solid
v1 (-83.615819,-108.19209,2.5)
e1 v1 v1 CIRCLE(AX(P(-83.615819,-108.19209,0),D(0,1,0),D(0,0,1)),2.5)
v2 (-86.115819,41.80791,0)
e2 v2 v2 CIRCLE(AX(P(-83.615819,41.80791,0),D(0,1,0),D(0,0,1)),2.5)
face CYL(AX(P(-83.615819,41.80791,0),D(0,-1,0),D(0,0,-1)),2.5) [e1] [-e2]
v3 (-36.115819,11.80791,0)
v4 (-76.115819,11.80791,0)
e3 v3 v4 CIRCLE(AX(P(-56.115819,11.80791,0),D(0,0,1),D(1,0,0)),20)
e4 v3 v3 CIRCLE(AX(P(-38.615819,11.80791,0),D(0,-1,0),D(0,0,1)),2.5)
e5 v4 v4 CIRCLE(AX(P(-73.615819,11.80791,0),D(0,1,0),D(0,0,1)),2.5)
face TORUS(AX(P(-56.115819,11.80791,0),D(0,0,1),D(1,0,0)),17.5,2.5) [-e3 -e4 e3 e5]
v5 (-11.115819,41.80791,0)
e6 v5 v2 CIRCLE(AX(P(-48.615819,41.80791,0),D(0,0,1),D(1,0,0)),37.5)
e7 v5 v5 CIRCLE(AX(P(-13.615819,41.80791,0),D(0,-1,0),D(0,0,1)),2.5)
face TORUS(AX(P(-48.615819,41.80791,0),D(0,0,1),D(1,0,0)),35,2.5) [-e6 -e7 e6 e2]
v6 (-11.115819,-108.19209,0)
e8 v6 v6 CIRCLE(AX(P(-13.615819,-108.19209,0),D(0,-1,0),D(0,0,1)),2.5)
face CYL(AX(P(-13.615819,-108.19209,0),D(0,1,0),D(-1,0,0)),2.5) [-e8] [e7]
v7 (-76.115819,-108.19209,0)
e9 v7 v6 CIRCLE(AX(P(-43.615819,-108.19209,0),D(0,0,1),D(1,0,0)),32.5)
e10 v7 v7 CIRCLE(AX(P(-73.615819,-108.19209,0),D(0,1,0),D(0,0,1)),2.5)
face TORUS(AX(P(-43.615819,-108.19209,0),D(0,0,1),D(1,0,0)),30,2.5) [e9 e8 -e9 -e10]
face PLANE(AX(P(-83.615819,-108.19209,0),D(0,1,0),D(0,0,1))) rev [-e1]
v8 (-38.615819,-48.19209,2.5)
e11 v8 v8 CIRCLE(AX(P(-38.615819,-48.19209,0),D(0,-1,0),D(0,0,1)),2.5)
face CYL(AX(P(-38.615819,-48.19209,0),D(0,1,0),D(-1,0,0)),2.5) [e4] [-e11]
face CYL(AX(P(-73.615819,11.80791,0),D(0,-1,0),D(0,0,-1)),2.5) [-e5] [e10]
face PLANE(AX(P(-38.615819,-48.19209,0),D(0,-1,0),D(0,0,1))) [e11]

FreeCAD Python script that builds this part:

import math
import FreeCAD as App
import Part
import Sketcher
from FreeCAD import Vector

doc = App.newDocument("Part")
body = doc.addObject("PartDesign::Body", "Body")

# Sketch on XZ plane
sketch1 = body.newObject("Sketcher::SketchObject", "Sketch")
sketch1.AttachmentSupport = (doc.getObject("XZ_Plane"), [""])
sketch1.MapMode = "FlatFace"
sketch1.AttachmentOffset = App.Placement(Vector(0, 0, 108.19209), App.Rotation())
sketch1.addGeometry(Part.Circle(Vector(-83.6, 0, 0), Vector(0, 0, 1), 2.5), False)
sketch1.addConstraint([
    Sketcher.Constraint("PointOnObject", 0, 3, -1),
    Sketcher.Constraint("Diameter", 0, 5.0),
    Sketcher.Constraint("DistanceX", 0, 3, -1, 1, 83.615819),
])

# Sketch on XY plane
sketch2 = body.newObject("Sketcher::SketchObject", "Sketch001")
sketch2.AttachmentSupport = (doc.getObject("XY_Plane"), [""])
sketch2.MapMode = "FlatFace"
sketch2.addGeometry([
    Part.LineSegment(Vector(-84, -108, 0), Vector(-84, 42, 0)),  # 0
    Part.ArcOfCircle(Part.Circle(Vector(-49, 42, 0), Vector(0, 0, 1), 35), math.radians(0), math.radians(180)),  # 1
    Part.LineSegment(Vector(-14, 42, 0), Vector(-14, -108, 0)),  # 2
    Part.ArcOfCircle(Part.Circle(Vector(-44, -108, 0), Vector(0, 0, 1), 30), math.radians(180), math.radians(360)),  # 3
    Part.LineSegment(Vector(-74, -108, 0), Vector(-74, 12, 0)),  # 4
    Part.ArcOfCircle(Part.Circle(Vector(-56, 12, 0), Vector(0, 0, 1), 18), math.radians(0), math.radians(180)),  # 5
    Part.LineSegment(Vector(-39, 12, 0), Vector(-39, -48, 0)),  # 6
], False)
sketch2.addConstraint([
    Sketcher.Constraint("Tangent", 0, 2, 1, 2),
    Sketcher.Constraint("Tangent", 1, 1, 2, 1),
    Sketcher.Constraint("Tangent", 2, 2, 3, 2),
    Sketcher.Constraint("Tangent", 3, 1, 4, 1),
    Sketcher.Constraint("Tangent", 4, 2, 5, 2),
    Sketcher.Constraint("Tangent", 5, 1, 6, 1),
    Sketcher.Constraint("Vertical", 0),
    Sketcher.Constraint("Vertical", 2),
    Sketcher.Constraint("Vertical", 4),
    Sketcher.Constraint("Vertical", 6),
    Sketcher.Constraint("Horizontal", 3, 3, 0, 1),
    Sketcher.Constraint("Radius", 1, 35.0),
    Sketcher.Constraint("Radius", 3, 30.0),
    Sketcher.Constraint("Radius", 5, 17.5),
    Sketcher.Constraint("DistanceY", 0, 1, 0, 2, 150.0),
    Sketcher.Constraint("DistanceY", 4, 1, 4, 2, 120.0),
    Sketcher.Constraint("DistanceY", 6, 2, 6, 1, 60.0),
    Sketcher.Constraint("DistanceX", 1, 3, -1, 1, 48.615819),
    Sketcher.Constraint("DistanceY", -1, 1, 1, 3, 41.80791),
])
doc.recompute()

additivepipe = body.newObject("PartDesign::AdditivePipe", "AdditivePipe")
additivepipe.Profile = sketch1
additivepipe.Spine = (sketch2, ["Edge1", "Edge2", "Edge3", "Edge4", "Edge5", "Edge6", "Edge7"])

doc.recompute()
